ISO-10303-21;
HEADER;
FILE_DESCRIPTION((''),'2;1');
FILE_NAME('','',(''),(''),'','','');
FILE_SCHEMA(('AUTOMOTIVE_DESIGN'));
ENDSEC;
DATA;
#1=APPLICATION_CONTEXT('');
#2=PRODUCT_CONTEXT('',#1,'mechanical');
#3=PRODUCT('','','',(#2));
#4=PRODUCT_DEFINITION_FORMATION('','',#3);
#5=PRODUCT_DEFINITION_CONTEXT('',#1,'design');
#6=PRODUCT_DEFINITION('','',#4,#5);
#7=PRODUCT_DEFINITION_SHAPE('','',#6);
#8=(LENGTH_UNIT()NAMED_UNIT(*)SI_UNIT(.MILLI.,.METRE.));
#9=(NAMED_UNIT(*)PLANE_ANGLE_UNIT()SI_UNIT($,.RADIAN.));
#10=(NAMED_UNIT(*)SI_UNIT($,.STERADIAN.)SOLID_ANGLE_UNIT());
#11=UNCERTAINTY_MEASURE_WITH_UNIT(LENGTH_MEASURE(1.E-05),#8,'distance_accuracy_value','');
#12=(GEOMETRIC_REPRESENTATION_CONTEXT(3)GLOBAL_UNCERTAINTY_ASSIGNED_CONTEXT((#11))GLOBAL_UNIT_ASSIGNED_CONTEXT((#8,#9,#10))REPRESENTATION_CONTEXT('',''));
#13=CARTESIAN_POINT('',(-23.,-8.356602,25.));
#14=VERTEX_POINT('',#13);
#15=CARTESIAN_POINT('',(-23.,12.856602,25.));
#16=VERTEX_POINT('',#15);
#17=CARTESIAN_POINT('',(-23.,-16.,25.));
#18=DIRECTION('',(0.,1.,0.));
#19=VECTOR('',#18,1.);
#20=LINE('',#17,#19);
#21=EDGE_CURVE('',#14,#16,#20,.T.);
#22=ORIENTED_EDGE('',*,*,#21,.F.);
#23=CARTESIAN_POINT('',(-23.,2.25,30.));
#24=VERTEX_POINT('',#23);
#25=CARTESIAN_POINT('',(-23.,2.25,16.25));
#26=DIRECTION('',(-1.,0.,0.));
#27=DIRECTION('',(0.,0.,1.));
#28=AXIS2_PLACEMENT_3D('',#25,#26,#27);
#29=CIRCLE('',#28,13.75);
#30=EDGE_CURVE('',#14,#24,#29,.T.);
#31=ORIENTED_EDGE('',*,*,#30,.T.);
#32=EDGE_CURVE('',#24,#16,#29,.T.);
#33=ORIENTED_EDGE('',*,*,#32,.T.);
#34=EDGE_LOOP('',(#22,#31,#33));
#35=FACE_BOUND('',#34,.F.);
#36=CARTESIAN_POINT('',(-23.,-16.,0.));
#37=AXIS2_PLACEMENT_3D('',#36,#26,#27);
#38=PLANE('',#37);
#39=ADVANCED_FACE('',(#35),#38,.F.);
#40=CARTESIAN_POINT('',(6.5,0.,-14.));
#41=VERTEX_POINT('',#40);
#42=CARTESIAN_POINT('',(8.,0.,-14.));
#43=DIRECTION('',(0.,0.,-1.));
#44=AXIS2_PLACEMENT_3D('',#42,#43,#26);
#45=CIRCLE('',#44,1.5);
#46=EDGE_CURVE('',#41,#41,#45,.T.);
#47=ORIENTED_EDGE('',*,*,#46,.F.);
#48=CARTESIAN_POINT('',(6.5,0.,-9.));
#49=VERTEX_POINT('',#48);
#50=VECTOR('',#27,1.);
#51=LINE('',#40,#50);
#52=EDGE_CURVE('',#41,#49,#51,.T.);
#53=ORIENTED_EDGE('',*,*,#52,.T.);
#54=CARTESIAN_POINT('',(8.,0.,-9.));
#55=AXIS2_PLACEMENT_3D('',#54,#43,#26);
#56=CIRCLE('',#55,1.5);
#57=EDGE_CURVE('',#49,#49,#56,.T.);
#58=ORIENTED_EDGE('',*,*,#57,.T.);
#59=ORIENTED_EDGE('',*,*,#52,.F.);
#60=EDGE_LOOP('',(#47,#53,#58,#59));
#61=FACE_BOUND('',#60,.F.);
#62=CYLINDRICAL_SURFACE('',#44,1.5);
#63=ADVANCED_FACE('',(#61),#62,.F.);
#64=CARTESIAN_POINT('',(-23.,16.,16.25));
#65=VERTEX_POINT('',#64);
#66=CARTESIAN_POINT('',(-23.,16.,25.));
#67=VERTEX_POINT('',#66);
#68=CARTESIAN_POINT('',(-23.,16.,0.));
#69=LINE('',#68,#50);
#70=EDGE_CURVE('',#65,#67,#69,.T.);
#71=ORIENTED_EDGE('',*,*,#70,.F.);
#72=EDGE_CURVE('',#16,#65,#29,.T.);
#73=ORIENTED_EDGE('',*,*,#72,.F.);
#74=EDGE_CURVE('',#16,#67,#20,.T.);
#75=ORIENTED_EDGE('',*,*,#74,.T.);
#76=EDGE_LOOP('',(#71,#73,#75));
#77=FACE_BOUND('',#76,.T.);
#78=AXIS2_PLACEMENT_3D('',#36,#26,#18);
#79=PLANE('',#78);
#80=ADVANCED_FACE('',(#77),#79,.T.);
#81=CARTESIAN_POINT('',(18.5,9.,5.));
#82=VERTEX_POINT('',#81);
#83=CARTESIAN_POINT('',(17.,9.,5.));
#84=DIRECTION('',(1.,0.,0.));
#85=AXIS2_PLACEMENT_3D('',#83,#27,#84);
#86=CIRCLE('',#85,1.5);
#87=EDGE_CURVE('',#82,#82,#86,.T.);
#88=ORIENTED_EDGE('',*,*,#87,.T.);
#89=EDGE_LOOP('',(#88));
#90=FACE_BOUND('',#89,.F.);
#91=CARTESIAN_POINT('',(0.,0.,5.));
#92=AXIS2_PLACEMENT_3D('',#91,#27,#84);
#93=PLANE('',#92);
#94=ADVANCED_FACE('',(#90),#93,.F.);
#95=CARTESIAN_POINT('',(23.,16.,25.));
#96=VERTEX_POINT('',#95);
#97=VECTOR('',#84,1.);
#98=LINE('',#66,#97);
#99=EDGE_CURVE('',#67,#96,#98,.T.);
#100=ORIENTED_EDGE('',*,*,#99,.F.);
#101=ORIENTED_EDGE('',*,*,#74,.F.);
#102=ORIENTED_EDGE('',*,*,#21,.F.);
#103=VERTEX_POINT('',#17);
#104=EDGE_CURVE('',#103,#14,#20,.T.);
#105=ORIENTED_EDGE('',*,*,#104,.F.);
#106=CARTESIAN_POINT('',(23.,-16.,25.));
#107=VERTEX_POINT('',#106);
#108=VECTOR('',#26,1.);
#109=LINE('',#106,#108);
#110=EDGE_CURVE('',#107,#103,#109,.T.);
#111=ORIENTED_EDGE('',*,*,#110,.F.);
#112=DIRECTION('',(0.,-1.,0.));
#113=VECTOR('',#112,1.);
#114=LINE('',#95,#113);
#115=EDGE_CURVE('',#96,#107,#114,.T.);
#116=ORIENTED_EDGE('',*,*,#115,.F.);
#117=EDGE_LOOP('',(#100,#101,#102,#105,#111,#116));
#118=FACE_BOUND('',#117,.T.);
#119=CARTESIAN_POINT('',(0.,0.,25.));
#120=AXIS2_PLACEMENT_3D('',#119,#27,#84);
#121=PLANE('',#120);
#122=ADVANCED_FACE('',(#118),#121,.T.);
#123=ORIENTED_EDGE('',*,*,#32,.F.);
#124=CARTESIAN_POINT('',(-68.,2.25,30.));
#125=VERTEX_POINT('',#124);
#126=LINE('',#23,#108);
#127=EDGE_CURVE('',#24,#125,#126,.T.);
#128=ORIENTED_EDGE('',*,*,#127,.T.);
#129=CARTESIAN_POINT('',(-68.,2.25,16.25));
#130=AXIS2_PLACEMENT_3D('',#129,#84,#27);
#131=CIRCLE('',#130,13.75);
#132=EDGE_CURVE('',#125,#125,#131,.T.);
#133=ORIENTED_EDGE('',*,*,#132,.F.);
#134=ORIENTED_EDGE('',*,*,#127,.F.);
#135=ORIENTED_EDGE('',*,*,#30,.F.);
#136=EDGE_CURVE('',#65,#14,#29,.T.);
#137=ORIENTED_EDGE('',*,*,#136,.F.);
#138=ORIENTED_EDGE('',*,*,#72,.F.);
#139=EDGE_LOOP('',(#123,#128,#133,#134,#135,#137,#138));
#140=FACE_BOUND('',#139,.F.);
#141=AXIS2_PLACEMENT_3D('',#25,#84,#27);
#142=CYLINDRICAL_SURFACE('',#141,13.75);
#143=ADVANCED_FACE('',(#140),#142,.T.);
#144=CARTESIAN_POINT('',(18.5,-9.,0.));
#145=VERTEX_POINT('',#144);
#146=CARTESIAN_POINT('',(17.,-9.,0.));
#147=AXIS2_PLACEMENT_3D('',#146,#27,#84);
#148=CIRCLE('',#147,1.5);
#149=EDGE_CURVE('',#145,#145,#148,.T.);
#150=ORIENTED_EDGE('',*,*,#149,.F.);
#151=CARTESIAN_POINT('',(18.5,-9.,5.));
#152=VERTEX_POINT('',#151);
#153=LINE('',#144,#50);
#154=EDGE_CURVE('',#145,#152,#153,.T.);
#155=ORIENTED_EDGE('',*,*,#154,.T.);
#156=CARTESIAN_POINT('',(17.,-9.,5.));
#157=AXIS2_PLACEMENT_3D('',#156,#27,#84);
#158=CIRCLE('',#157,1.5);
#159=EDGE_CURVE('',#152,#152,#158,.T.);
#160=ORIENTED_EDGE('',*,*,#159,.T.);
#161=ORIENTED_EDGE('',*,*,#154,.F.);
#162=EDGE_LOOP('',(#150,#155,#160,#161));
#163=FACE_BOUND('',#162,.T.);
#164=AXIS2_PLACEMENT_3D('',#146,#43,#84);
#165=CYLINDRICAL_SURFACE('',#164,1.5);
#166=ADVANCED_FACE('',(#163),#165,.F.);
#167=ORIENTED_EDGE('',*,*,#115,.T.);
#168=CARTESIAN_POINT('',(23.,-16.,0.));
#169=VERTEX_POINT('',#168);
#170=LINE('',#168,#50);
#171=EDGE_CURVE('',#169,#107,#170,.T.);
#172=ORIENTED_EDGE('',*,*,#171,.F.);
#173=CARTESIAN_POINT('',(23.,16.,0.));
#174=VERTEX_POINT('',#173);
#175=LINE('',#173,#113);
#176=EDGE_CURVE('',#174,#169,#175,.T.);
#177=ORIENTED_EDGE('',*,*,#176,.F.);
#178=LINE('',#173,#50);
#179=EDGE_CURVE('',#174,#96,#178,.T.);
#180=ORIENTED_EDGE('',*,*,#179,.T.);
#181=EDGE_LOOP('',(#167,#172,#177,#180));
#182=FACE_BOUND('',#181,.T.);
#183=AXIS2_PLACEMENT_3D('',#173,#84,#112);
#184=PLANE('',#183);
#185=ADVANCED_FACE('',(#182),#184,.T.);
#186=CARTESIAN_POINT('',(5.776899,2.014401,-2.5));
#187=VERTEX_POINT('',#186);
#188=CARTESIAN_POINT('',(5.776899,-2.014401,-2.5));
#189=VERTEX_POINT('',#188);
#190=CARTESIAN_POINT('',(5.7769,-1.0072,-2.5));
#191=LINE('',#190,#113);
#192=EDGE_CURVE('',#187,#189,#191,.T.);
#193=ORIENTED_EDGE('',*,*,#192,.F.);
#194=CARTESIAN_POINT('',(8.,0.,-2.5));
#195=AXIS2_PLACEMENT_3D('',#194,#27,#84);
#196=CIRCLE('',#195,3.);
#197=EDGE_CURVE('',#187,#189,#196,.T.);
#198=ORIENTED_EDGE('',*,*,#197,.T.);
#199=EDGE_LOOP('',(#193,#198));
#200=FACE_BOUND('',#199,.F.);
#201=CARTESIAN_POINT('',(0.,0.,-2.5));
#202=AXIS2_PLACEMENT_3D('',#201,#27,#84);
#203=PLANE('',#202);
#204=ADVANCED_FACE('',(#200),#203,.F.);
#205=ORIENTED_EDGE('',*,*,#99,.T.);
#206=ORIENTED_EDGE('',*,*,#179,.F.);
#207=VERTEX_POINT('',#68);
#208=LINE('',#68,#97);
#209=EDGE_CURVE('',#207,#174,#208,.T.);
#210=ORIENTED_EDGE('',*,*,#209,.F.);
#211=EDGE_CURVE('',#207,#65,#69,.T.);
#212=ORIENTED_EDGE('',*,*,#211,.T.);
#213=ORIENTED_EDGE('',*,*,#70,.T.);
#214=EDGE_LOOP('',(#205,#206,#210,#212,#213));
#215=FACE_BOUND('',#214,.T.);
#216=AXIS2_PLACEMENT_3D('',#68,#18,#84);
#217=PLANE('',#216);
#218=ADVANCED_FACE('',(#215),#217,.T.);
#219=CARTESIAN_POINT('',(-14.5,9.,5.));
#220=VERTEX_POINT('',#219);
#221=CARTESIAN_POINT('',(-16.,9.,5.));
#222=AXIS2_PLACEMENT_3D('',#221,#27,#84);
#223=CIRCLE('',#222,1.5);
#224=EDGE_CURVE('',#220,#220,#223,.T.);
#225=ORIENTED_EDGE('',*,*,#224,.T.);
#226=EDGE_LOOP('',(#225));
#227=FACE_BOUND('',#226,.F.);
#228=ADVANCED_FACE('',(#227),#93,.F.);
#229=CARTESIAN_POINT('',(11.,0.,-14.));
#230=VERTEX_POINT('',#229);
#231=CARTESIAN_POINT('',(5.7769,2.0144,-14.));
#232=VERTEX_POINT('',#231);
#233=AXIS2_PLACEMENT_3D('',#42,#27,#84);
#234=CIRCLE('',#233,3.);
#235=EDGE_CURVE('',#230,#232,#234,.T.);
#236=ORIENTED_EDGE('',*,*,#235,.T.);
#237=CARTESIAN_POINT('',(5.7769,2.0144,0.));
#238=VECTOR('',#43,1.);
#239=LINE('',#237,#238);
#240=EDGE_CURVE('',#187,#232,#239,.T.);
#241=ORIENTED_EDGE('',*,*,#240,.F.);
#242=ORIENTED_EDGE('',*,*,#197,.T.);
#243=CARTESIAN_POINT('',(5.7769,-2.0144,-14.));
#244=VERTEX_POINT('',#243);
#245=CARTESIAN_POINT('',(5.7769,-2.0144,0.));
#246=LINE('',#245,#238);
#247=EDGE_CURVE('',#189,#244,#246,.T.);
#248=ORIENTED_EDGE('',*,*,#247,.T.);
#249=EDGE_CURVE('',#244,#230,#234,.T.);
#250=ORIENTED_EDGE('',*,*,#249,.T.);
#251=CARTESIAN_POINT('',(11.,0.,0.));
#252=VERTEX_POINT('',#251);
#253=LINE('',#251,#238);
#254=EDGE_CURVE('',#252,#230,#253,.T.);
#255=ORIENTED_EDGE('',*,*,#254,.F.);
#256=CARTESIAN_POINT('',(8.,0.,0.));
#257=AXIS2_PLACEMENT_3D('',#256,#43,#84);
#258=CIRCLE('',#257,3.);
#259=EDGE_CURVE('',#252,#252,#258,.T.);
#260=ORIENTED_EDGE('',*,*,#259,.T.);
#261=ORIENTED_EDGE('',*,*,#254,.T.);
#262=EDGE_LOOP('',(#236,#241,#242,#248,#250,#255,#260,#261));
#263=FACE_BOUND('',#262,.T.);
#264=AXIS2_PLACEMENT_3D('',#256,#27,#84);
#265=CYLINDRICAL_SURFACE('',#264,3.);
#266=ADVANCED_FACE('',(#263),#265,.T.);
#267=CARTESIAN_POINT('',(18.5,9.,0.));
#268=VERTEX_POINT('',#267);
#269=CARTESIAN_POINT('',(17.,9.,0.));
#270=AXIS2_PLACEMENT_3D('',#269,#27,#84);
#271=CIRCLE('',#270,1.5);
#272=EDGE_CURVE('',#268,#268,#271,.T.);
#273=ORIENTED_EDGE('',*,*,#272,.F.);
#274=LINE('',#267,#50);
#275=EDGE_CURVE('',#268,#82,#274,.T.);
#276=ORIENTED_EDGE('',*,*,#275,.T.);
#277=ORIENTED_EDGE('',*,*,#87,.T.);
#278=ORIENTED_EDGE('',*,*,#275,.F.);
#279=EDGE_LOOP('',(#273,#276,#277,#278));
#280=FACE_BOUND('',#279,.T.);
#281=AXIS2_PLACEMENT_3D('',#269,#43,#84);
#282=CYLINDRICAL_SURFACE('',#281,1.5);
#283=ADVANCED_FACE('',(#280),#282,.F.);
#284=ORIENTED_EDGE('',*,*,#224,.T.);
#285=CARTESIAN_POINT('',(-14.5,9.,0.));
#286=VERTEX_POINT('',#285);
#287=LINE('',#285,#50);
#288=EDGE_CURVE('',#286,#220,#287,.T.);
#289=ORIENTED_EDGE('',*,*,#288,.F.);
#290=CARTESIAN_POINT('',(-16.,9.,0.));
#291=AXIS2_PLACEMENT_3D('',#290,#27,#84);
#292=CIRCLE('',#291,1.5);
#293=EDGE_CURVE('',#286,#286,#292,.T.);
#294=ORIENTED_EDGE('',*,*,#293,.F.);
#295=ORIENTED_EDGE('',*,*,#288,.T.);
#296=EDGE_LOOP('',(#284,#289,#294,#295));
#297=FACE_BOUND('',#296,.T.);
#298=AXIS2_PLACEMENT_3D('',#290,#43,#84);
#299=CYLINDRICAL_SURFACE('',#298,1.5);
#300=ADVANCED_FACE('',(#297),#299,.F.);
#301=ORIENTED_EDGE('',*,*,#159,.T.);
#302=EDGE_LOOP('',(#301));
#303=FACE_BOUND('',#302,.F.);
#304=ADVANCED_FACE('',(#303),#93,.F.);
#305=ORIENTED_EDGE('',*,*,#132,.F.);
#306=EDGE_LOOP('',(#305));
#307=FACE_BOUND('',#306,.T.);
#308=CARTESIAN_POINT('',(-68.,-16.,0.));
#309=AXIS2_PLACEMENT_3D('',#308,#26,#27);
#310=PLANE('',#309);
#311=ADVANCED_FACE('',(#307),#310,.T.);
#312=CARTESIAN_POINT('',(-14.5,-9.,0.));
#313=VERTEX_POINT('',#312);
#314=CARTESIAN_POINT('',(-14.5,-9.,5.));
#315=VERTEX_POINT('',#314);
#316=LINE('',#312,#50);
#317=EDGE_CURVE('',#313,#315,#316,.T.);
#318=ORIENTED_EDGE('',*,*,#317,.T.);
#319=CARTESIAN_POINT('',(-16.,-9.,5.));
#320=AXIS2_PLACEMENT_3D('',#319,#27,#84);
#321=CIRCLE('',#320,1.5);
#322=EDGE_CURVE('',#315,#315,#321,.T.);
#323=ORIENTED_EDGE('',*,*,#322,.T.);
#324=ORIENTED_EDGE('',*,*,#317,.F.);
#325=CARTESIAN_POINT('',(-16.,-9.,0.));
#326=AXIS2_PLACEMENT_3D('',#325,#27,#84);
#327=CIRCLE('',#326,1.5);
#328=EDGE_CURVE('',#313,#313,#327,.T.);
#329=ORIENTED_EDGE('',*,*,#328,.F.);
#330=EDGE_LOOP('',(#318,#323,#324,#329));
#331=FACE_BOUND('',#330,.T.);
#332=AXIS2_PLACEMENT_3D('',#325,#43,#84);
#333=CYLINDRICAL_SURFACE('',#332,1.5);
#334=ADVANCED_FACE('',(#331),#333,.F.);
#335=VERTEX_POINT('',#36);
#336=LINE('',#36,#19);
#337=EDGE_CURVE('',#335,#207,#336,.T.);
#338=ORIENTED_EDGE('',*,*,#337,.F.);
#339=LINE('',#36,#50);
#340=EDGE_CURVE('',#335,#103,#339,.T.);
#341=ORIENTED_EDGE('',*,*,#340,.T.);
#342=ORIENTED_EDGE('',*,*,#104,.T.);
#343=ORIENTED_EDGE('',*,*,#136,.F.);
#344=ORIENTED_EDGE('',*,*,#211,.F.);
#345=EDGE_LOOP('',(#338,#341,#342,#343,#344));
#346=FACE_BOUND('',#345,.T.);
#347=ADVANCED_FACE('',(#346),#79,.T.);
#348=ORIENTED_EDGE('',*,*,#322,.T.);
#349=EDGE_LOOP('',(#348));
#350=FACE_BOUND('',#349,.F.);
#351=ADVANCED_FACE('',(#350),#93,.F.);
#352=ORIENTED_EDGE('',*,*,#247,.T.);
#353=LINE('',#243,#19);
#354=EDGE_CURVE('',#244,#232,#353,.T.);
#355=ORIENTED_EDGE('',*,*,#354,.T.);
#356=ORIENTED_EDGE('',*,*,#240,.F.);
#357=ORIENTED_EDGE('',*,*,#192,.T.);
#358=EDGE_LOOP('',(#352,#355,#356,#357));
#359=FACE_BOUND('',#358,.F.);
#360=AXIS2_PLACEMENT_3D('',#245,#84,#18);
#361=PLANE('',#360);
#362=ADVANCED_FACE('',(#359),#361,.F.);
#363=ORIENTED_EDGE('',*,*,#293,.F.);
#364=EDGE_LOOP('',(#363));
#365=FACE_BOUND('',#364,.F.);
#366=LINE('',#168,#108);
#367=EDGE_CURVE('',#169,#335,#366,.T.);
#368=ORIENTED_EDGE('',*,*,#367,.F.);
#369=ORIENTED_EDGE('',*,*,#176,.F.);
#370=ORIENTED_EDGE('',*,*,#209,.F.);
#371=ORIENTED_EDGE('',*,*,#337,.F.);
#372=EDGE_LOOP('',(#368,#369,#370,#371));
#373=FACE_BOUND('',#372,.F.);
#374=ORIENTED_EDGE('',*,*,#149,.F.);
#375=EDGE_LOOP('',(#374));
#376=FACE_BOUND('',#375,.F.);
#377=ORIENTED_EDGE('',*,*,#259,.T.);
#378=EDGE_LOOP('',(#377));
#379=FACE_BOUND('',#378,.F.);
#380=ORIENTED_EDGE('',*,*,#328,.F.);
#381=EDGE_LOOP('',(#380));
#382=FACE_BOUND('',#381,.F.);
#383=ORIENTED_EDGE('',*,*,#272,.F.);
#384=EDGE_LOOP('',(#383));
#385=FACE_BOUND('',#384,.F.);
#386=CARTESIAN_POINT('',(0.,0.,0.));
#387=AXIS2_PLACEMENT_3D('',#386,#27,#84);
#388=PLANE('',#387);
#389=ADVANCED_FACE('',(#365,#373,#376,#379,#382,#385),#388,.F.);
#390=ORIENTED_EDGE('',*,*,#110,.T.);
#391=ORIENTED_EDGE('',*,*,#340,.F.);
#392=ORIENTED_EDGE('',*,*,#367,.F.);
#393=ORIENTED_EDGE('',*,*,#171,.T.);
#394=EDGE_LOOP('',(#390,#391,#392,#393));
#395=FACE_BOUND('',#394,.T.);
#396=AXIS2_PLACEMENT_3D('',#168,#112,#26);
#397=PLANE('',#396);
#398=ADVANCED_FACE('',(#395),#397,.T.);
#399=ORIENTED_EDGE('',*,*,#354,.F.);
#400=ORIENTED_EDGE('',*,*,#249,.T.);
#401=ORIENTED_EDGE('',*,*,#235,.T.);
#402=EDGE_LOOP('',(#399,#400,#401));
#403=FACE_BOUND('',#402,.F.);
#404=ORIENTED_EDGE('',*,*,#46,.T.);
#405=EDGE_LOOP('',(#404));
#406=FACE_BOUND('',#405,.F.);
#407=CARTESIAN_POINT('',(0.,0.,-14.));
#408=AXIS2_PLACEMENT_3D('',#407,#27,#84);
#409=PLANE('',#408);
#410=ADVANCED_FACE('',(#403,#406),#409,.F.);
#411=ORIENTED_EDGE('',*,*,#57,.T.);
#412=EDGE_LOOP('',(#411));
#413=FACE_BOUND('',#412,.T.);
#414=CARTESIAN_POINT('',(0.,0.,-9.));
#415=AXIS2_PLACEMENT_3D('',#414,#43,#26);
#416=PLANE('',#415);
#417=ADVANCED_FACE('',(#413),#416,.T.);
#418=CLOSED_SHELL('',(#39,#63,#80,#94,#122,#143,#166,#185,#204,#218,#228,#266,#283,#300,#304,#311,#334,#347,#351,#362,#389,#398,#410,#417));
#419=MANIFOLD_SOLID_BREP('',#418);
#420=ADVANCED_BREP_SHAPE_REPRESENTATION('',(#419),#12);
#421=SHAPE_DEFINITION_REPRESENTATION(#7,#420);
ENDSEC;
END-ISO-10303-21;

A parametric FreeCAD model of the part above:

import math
import FreeCAD as App
import Part
import Sketcher
Q = App.Units.Quantity

doc = App.newDocument("Part")
body = doc.addObject("PartDesign::Body", "Body")

sketch1 = doc.addObject("Sketcher::SketchObject", "Sketch")
body.addObject(sketch1)
sketch1.AttachmentSupport = (doc.XY_Plane, [""])
sketch1.MapMode = "FlatFace"
sketch1.addGeometry([
    Part.ArcOfCircle(Part.Circle(App.Vector(8, 0, 0), App.Vector(0, 0, 1), 3), math.radians(-138), math.radians(138)),
    Part.LineSegment(App.Vector(5.8, -2, 0), App.Vector(5.8, 2, 0)),
], False)
sketch1.addConstraint([
    Sketcher.Constraint("Coincident", 0, 1, 1, 1),
    Sketcher.Constraint("Coincident", 1, 2, 0, 2),
    Sketcher.Constraint("Vertical", 1),
    Sketcher.Constraint("PointOnObject", 0, 3, -1),
    Sketcher.Constraint("Radius", 0, Q("3 mm")),
    Sketcher.Constraint("DistanceX", -1, 1, 0, 3, Q("8 mm")),
    Sketcher.Constraint("DistanceY", 1, 1, 1, 2, Q("4.0288 mm")),
])
pad1 = doc.addObject("PartDesign::Pad", "Pad")
body.addObject(pad1)
pad1.Profile = sketch1
pad1.Length = 14
pad1.Reversed = True

sketch2 = doc.addObject("Sketcher::SketchObject", "Sketch001")
body.addObject(sketch2)
sketch2.AttachmentSupport = (doc.XY_Plane, [""])
sketch2.MapMode = "FlatFace"
sketch2.addGeometry(Part.Circle(App.Vector(8, 0, 0), App.Vector(0, 0, 1), 3), False)
sketch2.addConstraint([
    Sketcher.Constraint("PointOnObject", 0, 3, -1),
    Sketcher.Constraint("Diameter", 0, Q("6 mm")),
    Sketcher.Constraint("DistanceX", -1, 1, 0, 3, Q("8 mm")),
])
pad2 = doc.addObject("PartDesign::Pad", "Pad001")
body.addObject(pad2)
pad2.Profile = sketch2
pad2.Length = 2.5
pad2.Reversed = True

sketch3 = doc.addObject("Sketcher::SketchObject", "Sketch002")
body.addObject(sketch3)
sketch3.AttachmentSupport = (doc.XY_Plane, [""])
sketch3.MapMode = "FlatFace"
sketch3.addGeometry([
    Part.LineSegment(App.Vector(-23, -16, 0), App.Vector(23, -16, 0)),
    Part.LineSegment(App.Vector(23, -16, 0), App.Vector(23, 16, 0)),
    Part.LineSegment(App.Vector(23, 16, 0), App.Vector(-23, 16, 0)),
    Part.LineSegment(App.Vector(-23, 16, 0), App.Vector(-23, -16, 0)),
], False)
sketch3.addConstraint([
    Sketcher.Constraint("Coincident", 0, 2, 1, 1),
    Sketcher.Constraint("Coincident", 1, 2, 2, 1),
    Sketcher.Constraint("Coincident", 2, 2, 3, 1),
    Sketcher.Constraint("Coincident", 3, 2, 0, 1),
    Sketcher.Constraint("Horizontal", 0),
    Sketcher.Constraint("Vertical", 1),
    Sketcher.Constraint("Horizontal", 2),
    Sketcher.Constraint("Vertical", 3),
    Sketcher.Constraint("Symmetric", 0, 2, 2, 2, -1, 1),
    Sketcher.Constraint("DistanceX", 0, 1, 0, 2, Q("46 mm")),
    Sketcher.Constraint("DistanceY", 1, 1, 1, 2, Q("32 mm")),
])
pad3 = doc.addObject("PartDesign::Pad", "Pad002")
body.addObject(pad3)
pad3.Profile = sketch3
pad3.Length = 25

sketch4 = doc.addObject("Sketcher::SketchObject", "Sketch003")
body.addObject(sketch4)
sketch4.AttachmentSupport = (doc.XY_Plane, [""])
sketch4.MapMode = "FlatFace"
sketch4.addGeometry([
    Part.Circle(App.Vector(17, 9, 0), App.Vector(0, 0, 1), 1.5),
    Part.Circle(App.Vector(-16, 9, 0), App.Vector(0, 0, 1), 1.5),
    Part.Circle(App.Vector(17, -9, 0), App.Vector(0, 0, 1), 1.5),
    Part.Circle(App.Vector(-16, -9, 0), App.Vector(0, 0, 1), 1.5),
], False)
sketch4.addConstraint([
    Sketcher.Constraint("Equal", 0, 1),
    Sketcher.Constraint("Equal", 1, 2),
    Sketcher.Constraint("Equal", 2, 3),
    Sketcher.Constraint("Symmetric", 0, 3, 2, 3, -1),
    Sketcher.Constraint("Symmetric", 1, 3, 3, 3, -1),
    Sketcher.Constraint("Horizontal", 0, 3, 1, 3),
    Sketcher.Constraint("Diameter", 0, Q("3 mm")),
    Sketcher.Constraint("DistanceY", -1, 1, 0, 3, Q("9 mm")),
    Sketcher.Constraint("DistanceX", 1, 3, 0, 3, Q("33 mm")),
    Sketcher.Constraint("DistanceX", -1, 1, 0, 3, Q("17 mm")),
])
pocket1 = doc.addObject("PartDesign::Pocket", "Pocket")
body.addObject(pocket1)
pocket1.Profile = sketch4
pocket1.Length = 5
pocket1.Reversed = True

sketch5 = doc.addObject("Sketcher::SketchObject", "Sketch004")
body.addObject(sketch5)
sketch5.AttachmentSupport = (doc.YZ_Plane, [""])
sketch5.MapMode = "FlatFace"
sketch5.AttachmentOffset = App.Placement(App.Vector(0, 0, -23), App.Rotation())
sketch5.addGeometry(Part.Circle(App.Vector(2, 16, 0), App.Vector(0, 0, 1), 14), False)
sketch5.addConstraint([
    Sketcher.Constraint("Diameter", 0, Q("27.5 mm")),
    Sketcher.Constraint("DistanceY", -1, 1, 0, 3, Q("16.25 mm")),
    Sketcher.Constraint("DistanceX", -1, 1, 0, 3, Q("2.25 mm")),
])
pad4 = doc.addObject("PartDesign::Pad", "Pad003")
body.addObject(pad4)
pad4.Profile = sketch5
pad4.Length = 45
pad4.Reversed = True

sketch6 = doc.addObject("Sketcher::SketchObject", "Sketch005")
body.addObject(sketch6)
sketch6.AttachmentSupport = (doc.XY_Plane, [""])
sketch6.MapMode = "FlatFace"
sketch6.AttachmentOffset = App.Placement(App.Vector(0, 0, -14), App.Rotation())
sketch6.addGeometry(Part.Circle(App.Vector(8, 0, 0), App.Vector(0, 0, 1), 1.5), False)
sketch6.addConstraint([
    Sketcher.Constraint("PointOnObject", 0, 3, -1),
    Sketcher.Constraint("Diameter", 0, Q("3 mm")),
    Sketcher.Constraint("DistanceX", -1, 1, 0, 3, Q("8 mm")),
])
pocket2 = doc.addObject("PartDesign::Pocket", "Pocket001")
body.addObject(pocket2)
pocket2.Profile = sketch6
pocket2.Length = 5
pocket2.Reversed = True

doc.recompute()
